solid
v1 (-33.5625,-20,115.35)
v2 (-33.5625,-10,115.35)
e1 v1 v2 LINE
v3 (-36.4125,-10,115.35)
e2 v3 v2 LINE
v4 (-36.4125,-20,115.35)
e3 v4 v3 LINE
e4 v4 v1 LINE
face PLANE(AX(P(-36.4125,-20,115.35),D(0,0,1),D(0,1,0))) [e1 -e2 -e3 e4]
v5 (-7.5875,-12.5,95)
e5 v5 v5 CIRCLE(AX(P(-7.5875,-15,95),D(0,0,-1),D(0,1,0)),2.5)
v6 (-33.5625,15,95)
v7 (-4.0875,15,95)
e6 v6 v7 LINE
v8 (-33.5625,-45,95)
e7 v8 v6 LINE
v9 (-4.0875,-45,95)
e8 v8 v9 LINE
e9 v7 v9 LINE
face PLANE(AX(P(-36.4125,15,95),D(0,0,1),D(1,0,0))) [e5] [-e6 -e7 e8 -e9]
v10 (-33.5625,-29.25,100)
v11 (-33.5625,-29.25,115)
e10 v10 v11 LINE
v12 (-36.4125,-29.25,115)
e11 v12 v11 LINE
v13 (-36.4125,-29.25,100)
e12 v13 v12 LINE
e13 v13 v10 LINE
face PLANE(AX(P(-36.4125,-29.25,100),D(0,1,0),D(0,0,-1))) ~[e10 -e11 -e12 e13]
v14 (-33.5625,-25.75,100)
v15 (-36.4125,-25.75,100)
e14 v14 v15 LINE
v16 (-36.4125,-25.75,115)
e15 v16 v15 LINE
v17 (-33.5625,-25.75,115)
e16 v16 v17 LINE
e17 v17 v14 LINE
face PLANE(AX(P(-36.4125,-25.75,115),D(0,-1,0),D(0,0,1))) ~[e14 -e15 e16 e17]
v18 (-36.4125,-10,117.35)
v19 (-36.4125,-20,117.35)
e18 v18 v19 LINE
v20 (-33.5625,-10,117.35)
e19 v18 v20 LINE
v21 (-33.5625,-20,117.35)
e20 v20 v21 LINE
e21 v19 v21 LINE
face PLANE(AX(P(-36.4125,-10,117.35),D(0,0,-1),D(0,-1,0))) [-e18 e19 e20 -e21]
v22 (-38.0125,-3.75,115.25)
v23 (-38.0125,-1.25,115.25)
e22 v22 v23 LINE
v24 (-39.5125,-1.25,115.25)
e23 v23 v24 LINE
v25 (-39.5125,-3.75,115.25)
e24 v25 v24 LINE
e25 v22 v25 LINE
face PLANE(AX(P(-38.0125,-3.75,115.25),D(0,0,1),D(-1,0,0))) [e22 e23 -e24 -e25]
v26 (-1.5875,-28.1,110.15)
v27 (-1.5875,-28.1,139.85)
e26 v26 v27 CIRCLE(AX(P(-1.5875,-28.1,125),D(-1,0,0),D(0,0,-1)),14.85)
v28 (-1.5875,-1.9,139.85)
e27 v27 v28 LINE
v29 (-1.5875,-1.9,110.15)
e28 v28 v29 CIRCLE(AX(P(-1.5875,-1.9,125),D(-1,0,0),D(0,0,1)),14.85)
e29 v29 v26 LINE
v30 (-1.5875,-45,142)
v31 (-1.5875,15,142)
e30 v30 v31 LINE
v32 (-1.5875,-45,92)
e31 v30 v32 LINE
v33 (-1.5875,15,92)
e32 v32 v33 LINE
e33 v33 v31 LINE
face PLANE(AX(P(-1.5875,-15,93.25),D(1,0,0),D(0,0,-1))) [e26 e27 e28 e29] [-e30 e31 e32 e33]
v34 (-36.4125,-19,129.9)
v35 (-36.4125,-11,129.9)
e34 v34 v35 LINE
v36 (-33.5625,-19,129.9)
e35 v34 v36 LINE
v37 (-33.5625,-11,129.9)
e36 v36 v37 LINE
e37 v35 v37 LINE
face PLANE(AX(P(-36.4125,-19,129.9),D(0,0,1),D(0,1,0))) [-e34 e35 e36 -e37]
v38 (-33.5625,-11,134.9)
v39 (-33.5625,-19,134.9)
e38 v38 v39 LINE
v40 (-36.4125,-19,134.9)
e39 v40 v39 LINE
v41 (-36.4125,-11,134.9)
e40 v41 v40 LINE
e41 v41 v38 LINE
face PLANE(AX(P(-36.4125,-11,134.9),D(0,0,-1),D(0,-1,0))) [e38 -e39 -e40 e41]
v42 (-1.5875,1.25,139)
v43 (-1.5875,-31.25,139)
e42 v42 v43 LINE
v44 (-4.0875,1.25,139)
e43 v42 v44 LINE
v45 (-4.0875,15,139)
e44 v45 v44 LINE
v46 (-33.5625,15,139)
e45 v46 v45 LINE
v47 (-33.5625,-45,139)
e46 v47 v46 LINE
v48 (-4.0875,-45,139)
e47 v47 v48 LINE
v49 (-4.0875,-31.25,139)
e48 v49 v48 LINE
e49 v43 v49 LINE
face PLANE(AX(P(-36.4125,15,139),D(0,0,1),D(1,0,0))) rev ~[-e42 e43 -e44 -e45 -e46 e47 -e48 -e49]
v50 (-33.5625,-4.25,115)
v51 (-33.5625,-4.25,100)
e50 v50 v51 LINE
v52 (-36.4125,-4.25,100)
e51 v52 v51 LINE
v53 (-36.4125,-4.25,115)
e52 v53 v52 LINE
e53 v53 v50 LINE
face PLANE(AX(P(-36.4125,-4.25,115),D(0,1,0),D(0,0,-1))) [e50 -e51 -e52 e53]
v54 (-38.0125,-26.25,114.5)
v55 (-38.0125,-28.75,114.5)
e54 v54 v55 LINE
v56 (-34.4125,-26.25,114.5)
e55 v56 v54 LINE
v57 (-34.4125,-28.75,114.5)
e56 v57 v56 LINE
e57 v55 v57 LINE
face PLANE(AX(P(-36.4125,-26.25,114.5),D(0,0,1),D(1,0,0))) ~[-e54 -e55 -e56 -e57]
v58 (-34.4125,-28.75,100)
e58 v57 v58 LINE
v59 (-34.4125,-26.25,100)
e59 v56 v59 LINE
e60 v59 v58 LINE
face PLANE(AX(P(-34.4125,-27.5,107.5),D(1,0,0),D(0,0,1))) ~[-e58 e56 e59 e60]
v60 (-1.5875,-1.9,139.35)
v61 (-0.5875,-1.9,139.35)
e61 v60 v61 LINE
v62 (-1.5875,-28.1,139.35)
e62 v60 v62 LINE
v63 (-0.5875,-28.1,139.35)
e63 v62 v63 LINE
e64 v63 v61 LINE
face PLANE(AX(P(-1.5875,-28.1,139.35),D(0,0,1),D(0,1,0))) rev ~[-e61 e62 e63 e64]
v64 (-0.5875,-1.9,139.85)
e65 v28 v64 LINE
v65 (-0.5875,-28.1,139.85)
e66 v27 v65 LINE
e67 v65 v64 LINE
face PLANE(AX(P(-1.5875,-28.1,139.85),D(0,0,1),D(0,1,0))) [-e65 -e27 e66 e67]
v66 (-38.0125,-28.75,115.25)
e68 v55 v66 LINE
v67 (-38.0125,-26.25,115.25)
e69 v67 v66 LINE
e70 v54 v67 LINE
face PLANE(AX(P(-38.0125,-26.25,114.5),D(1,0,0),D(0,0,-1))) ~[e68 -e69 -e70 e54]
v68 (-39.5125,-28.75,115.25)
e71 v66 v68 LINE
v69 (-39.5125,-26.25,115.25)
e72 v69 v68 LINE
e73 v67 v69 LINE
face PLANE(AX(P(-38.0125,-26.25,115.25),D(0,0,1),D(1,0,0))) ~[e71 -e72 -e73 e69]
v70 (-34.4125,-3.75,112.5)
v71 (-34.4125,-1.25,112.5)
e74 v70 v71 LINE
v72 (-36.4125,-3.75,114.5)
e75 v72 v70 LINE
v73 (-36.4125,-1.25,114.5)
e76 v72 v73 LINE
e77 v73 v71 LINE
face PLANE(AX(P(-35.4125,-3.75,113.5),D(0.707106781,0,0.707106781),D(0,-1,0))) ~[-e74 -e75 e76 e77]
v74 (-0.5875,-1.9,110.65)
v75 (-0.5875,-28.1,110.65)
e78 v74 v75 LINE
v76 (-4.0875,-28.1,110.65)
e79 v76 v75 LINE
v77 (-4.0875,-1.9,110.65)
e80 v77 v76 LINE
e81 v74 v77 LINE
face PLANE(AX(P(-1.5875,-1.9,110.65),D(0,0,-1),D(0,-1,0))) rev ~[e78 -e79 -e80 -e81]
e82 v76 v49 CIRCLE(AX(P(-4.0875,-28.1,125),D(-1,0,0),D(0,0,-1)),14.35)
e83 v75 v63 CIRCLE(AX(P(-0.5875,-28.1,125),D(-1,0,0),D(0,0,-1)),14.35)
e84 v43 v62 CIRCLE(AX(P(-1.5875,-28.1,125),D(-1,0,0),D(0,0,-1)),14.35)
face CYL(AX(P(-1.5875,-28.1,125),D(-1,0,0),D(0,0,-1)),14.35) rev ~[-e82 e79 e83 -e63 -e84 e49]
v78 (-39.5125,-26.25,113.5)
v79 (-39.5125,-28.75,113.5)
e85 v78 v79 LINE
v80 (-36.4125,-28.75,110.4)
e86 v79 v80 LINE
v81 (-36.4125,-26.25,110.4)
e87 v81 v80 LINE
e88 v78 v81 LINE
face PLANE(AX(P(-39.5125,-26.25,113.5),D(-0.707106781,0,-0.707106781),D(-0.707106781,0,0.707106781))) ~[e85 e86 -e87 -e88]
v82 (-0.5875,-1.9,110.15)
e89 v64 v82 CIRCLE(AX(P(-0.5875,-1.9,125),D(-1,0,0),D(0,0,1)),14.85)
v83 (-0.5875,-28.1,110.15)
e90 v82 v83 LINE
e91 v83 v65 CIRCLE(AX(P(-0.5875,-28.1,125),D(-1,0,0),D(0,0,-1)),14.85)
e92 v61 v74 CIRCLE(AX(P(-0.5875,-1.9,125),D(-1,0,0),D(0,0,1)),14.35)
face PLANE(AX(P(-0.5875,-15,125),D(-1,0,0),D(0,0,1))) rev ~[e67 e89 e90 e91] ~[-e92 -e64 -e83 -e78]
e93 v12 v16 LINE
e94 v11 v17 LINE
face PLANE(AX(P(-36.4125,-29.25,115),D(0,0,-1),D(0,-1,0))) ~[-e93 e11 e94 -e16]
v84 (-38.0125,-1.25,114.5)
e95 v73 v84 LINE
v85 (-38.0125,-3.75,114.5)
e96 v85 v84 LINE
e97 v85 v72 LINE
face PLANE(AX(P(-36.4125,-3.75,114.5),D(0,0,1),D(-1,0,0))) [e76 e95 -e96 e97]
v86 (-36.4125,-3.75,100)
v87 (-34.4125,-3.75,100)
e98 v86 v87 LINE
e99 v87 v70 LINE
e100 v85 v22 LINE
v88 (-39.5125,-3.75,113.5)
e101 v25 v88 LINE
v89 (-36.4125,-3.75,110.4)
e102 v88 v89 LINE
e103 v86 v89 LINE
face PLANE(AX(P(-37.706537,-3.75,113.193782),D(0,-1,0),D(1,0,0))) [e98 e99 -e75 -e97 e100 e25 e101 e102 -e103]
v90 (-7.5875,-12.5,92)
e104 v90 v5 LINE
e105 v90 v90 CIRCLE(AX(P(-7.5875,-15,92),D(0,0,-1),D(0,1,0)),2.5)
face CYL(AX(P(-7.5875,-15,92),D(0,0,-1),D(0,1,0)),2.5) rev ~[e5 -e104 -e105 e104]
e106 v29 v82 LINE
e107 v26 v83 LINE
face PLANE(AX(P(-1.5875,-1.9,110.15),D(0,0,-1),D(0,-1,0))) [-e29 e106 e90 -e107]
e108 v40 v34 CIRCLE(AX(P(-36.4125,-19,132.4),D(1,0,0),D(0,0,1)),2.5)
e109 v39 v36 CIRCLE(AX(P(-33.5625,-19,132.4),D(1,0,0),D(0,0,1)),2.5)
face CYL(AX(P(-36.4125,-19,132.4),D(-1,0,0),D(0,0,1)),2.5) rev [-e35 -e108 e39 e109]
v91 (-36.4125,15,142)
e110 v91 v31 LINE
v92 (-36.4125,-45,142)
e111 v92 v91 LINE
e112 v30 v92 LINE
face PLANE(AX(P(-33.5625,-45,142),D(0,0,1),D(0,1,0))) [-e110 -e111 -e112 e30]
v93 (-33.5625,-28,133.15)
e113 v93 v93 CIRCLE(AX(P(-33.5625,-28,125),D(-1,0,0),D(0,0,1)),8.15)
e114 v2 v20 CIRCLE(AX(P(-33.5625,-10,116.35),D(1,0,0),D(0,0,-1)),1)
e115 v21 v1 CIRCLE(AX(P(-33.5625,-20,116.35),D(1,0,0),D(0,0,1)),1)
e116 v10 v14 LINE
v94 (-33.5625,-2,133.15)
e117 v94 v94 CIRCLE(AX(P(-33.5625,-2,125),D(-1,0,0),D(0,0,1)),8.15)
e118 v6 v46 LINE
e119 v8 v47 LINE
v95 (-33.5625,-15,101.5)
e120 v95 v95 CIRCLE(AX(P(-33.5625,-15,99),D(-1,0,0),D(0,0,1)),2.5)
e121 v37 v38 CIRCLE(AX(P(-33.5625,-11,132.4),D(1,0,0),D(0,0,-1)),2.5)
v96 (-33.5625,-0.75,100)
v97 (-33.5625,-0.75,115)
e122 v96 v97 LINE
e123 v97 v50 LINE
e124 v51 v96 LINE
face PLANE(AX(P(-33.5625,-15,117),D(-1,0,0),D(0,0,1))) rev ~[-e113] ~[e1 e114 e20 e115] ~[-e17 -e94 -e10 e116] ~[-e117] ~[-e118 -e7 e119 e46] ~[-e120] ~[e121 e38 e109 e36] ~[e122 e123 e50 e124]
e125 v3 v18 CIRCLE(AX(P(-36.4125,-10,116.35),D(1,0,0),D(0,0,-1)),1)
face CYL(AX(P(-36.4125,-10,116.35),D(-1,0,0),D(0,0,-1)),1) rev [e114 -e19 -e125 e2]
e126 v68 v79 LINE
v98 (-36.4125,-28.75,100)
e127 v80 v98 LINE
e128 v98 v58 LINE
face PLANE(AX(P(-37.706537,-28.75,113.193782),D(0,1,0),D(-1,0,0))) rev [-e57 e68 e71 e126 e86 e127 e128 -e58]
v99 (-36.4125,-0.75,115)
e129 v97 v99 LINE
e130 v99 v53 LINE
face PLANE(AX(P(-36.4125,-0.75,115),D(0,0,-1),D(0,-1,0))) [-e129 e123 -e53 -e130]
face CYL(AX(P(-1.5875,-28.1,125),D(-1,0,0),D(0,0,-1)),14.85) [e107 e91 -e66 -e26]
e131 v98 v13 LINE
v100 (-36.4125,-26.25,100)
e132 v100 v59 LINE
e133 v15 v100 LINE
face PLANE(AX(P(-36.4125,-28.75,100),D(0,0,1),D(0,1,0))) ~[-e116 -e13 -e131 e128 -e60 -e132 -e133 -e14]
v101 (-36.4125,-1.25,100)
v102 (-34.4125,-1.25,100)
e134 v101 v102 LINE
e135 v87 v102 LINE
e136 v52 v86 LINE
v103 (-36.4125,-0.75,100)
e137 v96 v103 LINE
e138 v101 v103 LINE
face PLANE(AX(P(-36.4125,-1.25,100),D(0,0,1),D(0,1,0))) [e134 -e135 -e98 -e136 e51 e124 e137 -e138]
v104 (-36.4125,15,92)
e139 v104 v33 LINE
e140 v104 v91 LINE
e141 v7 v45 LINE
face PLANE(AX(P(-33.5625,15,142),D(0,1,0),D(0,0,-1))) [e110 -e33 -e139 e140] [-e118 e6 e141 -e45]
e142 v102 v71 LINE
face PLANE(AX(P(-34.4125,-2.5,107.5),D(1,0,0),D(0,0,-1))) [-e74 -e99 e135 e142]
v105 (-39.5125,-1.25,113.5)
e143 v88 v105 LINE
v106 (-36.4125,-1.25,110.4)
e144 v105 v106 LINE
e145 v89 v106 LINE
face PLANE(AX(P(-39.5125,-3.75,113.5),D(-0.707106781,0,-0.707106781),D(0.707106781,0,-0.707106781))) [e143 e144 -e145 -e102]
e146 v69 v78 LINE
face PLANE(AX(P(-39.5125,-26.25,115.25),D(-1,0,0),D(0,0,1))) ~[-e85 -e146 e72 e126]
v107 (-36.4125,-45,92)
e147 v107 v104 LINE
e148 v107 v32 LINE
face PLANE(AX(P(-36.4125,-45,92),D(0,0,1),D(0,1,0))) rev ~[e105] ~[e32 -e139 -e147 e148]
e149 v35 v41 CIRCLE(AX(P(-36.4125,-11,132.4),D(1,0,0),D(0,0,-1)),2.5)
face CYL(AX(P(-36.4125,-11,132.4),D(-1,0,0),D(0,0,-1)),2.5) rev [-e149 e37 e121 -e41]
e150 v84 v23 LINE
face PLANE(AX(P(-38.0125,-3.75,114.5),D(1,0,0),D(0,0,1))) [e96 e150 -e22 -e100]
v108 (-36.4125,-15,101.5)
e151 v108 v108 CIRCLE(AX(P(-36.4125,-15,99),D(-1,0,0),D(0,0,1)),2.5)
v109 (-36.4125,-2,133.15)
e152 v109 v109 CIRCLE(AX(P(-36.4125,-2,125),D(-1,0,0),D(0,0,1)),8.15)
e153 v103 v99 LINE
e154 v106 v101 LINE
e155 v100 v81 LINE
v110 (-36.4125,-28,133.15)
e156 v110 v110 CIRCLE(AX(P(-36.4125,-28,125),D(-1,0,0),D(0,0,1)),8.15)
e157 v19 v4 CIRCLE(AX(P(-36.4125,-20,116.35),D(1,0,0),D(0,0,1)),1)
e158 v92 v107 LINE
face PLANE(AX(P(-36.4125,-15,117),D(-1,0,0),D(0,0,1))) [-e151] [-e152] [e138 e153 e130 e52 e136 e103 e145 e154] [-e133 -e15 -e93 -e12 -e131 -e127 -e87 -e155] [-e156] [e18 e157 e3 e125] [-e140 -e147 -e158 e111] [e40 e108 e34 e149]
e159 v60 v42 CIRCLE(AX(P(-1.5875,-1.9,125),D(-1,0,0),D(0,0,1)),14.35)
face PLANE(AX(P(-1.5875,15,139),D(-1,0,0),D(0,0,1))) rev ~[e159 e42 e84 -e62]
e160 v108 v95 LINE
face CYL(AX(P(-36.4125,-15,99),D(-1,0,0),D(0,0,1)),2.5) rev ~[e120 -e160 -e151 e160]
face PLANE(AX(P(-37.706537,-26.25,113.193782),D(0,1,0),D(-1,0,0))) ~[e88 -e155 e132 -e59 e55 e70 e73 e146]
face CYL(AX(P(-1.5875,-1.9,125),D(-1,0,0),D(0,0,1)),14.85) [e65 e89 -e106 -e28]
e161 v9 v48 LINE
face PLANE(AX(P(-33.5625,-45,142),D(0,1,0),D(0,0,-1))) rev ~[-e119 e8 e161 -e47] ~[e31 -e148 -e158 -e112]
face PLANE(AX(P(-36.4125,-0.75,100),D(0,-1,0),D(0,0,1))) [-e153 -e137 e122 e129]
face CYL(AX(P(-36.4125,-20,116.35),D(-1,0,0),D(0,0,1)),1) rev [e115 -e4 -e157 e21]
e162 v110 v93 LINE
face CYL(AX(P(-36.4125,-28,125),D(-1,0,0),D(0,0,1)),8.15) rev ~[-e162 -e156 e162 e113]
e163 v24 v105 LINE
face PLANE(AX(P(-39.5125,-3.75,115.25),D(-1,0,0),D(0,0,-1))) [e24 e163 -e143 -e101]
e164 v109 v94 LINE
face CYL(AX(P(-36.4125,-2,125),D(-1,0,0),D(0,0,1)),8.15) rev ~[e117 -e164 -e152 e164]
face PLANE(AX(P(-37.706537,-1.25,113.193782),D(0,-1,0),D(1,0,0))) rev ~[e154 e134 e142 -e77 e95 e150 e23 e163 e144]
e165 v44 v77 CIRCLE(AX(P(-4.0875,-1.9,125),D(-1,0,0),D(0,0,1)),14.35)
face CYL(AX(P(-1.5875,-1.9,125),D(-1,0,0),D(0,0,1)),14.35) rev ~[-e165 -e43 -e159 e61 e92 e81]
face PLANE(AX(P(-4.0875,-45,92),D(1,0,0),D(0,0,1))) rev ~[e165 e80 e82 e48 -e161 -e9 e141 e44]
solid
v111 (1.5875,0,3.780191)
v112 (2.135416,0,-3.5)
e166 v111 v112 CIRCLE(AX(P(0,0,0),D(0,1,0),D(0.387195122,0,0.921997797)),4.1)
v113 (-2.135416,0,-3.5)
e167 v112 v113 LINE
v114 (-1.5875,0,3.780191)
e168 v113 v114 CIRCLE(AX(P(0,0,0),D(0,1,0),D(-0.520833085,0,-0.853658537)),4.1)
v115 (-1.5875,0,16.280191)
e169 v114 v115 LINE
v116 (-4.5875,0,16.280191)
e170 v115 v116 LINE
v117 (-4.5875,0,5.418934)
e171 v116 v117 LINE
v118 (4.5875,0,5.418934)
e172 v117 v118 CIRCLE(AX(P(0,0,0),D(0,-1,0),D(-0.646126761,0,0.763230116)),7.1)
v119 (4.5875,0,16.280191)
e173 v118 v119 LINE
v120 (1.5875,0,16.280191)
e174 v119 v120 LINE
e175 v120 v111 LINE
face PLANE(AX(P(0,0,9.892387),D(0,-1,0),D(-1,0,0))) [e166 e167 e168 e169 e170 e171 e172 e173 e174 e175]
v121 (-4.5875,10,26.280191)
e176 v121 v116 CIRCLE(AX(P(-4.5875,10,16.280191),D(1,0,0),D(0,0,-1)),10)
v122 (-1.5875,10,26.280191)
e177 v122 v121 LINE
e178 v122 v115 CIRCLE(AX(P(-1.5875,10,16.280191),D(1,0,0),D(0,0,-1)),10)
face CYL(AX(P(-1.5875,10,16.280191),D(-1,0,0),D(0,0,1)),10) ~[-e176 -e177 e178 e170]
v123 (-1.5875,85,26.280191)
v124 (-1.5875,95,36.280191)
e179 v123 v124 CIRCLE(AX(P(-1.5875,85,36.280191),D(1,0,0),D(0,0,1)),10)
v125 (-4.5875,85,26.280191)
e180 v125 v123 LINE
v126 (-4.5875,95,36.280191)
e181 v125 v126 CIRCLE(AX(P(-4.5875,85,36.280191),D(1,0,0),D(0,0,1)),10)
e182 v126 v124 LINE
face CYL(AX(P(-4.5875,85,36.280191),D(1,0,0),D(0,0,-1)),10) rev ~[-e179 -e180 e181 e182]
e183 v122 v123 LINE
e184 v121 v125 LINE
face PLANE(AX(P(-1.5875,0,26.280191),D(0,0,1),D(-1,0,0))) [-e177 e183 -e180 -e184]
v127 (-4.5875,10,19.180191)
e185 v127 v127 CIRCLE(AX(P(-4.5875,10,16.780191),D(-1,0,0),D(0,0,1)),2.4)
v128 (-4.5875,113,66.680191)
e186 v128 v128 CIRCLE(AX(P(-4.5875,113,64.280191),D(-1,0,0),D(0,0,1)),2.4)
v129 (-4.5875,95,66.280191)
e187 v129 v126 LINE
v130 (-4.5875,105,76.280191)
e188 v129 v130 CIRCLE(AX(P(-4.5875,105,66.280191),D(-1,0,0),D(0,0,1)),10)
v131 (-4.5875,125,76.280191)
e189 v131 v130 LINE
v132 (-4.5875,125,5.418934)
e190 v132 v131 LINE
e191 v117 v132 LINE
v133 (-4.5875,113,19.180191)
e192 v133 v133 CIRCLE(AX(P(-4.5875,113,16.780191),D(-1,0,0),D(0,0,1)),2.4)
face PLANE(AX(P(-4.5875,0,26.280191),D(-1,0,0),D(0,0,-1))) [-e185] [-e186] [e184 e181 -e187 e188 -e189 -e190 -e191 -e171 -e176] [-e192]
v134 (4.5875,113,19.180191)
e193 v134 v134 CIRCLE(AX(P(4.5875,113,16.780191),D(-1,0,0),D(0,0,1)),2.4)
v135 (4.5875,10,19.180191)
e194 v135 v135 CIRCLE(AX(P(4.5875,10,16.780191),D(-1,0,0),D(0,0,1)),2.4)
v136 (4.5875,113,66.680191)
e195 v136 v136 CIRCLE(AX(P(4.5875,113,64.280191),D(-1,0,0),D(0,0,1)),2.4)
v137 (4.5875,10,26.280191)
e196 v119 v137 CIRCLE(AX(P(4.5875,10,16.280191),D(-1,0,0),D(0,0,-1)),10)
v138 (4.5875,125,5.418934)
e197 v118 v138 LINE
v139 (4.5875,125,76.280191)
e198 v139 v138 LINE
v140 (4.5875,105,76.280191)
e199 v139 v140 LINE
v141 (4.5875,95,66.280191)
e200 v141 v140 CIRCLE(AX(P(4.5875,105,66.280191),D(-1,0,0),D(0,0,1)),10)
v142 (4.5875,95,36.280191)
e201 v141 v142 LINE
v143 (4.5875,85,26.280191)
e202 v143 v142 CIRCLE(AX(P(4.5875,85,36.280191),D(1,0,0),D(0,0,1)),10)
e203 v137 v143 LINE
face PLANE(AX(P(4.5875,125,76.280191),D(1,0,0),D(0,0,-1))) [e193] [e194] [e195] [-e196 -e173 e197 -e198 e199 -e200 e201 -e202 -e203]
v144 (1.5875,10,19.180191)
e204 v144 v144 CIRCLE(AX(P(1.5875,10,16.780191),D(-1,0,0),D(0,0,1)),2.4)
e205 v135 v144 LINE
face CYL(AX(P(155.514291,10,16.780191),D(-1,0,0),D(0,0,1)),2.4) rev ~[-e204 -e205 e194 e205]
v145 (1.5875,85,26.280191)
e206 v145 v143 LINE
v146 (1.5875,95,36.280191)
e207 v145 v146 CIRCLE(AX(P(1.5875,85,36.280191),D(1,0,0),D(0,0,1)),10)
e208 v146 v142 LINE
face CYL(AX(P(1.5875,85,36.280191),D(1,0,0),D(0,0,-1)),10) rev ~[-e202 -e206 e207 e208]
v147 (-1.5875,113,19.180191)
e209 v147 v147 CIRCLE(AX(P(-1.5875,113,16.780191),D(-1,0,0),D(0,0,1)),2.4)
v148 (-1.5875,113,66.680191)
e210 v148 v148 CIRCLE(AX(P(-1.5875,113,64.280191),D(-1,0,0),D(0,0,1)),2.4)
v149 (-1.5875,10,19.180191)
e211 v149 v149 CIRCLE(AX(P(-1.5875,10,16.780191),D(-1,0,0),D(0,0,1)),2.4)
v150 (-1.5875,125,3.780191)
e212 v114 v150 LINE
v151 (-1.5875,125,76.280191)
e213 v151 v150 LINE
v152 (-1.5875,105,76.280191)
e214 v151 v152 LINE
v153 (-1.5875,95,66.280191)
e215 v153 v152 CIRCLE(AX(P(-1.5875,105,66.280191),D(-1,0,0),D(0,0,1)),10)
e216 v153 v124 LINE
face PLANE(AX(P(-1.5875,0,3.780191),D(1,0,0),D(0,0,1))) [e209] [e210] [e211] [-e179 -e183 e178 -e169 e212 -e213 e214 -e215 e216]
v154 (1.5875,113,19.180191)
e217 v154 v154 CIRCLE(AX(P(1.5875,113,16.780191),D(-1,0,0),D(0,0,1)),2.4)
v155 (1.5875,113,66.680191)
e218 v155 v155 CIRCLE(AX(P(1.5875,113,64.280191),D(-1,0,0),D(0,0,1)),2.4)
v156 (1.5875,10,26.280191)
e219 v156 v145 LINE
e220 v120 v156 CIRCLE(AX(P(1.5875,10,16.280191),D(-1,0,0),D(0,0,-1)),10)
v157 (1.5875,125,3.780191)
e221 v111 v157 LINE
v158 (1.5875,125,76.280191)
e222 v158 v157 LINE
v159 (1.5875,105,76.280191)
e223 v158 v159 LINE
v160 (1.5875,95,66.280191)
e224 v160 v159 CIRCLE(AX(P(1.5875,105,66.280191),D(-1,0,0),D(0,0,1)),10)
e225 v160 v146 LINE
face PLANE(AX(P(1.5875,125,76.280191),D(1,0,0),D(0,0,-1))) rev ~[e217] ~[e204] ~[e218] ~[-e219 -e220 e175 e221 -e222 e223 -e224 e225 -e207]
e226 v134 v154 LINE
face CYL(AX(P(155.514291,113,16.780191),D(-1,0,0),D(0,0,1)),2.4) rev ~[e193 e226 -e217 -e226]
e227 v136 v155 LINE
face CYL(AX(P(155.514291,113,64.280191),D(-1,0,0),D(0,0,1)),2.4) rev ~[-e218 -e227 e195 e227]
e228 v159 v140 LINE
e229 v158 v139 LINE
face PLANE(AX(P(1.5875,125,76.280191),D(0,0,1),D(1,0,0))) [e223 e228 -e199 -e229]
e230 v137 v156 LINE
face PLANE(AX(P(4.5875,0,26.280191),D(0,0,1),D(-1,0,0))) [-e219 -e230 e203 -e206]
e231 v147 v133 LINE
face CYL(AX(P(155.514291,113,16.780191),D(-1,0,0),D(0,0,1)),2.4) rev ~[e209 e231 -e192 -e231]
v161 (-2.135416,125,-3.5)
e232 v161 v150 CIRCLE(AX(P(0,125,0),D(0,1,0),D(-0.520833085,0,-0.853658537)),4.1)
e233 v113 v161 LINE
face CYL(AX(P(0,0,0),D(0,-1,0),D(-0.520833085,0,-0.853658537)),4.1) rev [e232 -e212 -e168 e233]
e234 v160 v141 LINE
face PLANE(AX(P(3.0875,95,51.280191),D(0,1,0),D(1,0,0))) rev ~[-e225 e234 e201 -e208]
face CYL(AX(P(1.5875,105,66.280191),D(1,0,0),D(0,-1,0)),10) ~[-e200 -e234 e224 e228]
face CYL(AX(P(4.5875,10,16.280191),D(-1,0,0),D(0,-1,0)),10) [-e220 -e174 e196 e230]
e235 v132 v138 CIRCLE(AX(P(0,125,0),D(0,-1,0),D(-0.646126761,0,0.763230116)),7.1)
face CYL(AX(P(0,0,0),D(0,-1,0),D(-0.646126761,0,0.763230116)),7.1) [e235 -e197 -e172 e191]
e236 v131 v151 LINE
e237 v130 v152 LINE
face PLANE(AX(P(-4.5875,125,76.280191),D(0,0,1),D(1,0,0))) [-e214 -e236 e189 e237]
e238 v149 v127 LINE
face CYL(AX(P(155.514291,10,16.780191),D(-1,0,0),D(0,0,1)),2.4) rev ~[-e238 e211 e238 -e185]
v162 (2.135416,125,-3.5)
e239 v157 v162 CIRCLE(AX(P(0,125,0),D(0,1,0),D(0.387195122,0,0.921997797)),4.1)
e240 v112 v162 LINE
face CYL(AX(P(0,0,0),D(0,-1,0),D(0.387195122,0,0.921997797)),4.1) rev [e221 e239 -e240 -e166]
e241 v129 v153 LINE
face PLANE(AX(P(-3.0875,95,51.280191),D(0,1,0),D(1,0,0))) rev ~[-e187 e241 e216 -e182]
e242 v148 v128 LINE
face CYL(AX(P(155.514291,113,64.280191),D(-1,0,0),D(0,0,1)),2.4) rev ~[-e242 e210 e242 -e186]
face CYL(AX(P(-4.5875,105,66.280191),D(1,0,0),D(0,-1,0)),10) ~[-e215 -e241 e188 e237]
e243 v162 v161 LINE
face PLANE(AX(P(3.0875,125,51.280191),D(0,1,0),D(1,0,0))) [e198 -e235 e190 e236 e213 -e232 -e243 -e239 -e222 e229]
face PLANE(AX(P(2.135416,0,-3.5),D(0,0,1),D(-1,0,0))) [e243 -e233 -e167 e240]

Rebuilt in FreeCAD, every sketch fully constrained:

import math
import FreeCAD as App
import Part
import Sketcher
Q = App.Units.Quantity


def edges_at(feature, points):
    """Names of the edges that pass closest to the given points."""
    edges = feature.Shape.Edges
    near = lambda p: min(range(len(edges)), key=lambda i: edges[i].distToShape(Part.Vertex(*p))[0])
    return sorted({f"Edge{near(p) + 1}" for p in points})


def add_polygon(sketch, points):
    """Adds a closed chain of lines whose ends are joined by coincident constraints."""
    first, n = sketch.GeometryCount, len(points)
    for a, b in zip(points, points[1:] + points[:1]):
        sketch.addGeometry(Part.LineSegment(App.Vector(*a, 0), App.Vector(*b, 0)), False)
    for i in range(n):
        sketch.addConstraint(Sketcher.Constraint("Coincident", first + i, 2, first + (i + 1) % n, 1))

doc = App.newDocument("Part")
body = doc.addObject("PartDesign::Body", "Body")

sketch1 = doc.addObject("Sketcher::SketchObject", "Sketch")
body.addObject(sketch1)
sketch1.AttachmentSupport = (doc.XZ_Plane, [""])
sketch1.MapMode = "FlatFace"
sketch1.addGeometry(Part.LineSegment(App.Vector(-1.6, 26.3, 0), App.Vector(-1.6, 3.8, 0)), False)
sketch1.addGeometry(Part.ArcOfCircle(Part.Circle(App.Vector(0, 0, 0), App.Vector(0, 0, 1), 4.1), math.radians(113), math.radians(239)), False)
sketch1.addGeometry(Part.LineSegment(App.Vector(-2.1, -3.5, 0), App.Vector(2.1, -3.5, 0)), False)
sketch1.addGeometry(Part.ArcOfCircle(Part.Circle(App.Vector(0, 0, 0), App.Vector(0, 0, 1), 4.1), math.radians(-59), math.radians(67)), False)
sketch1.addGeometry(Part.LineSegment(App.Vector(1.6, 3.8, 0), App.Vector(1.6, 26.3, 0)), False)
sketch1.addGeometry(Part.LineSegment(App.Vector(1.6, 26.3, 0), App.Vector(4.6, 26.3, 0)), False)
sketch1.addGeometry(Part.LineSegment(App.Vector(4.6, 26.3, 0), App.Vector(4.6, 5.4, 0)), False)
sketch1.addGeometry(Part.ArcOfCircle(Part.Circle(App.Vector(0, 0, 0), App.Vector(0, 0, 1), 7.1), math.radians(130), math.radians(410)), False)
sketch1.addGeometry(Part.LineSegment(App.Vector(-4.6, 5.4, 0), App.Vector(-4.6, 26.3, 0)), False)
sketch1.addGeometry(Part.LineSegment(App.Vector(-4.6, 26.3, 0), App.Vector(-1.6, 26.3, 0)), False)
sketch1.addConstraint(Sketcher.Constraint("Coincident", 0, 2, 1, 1))
sketch1.addConstraint(Sketcher.Constraint("Coincident", 1, 2, 2, 1))
sketch1.addConstraint(Sketcher.Constraint("Coincident", 2, 2, 3, 1))
sketch1.addConstraint(Sketcher.Constraint("Coincident", 3, 2, 4, 1))
sketch1.addConstraint(Sketcher.Constraint("Coincident", 4, 2, 5, 1))
sketch1.addConstraint(Sketcher.Constraint("Coincident", 5, 2, 6, 1))
sketch1.addConstraint(Sketcher.Constraint("Coincident", 6, 2, 7, 2))
sketch1.addConstraint(Sketcher.Constraint("Coincident", 7, 1, 8, 1))
sketch1.addConstraint(Sketcher.Constraint("Coincident", 8, 2, 9, 1))
sketch1.addConstraint(Sketcher.Constraint("Coincident", 9, 2, 0, 1))
sketch1.addConstraint(Sketcher.Constraint("Vertical", 0))
sketch1.addConstraint(Sketcher.Constraint("Horizontal", 2))
sketch1.addConstraint(Sketcher.Constraint("Vertical", 4))
sketch1.addConstraint(Sketcher.Constraint("Horizontal", 5))
sketch1.addConstraint(Sketcher.Constraint("Vertical", 6))
sketch1.addConstraint(Sketcher.Constraint("Vertical", 8))
sketch1.addConstraint(Sketcher.Constraint("Horizontal", 9))
sketch1.addConstraint(Sketcher.Constraint("Coincident", 1, 3, -1, 1))
sketch1.addConstraint(Sketcher.Constraint("Coincident", 3, 3, -1, 1))
sketch1.addConstraint(Sketcher.Constraint("Coincident", 7, 3, -1, 1))
sketch1.addConstraint(Sketcher.Constraint("Equal", 1, 3))
sketch1.addConstraint(Sketcher.Constraint("Symmetric", 5, 2, 8, 2, -2))
sketch1.addConstraint(Sketcher.Constraint("Horizontal", 0, 2, 3, 2))
sketch1.addConstraint(Sketcher.Constraint("Radius", 1, Q("4.1 mm")))
sketch1.addConstraint(Sketcher.Constraint("Radius", 7, Q("7.1 mm")))
sketch1.addConstraint(Sketcher.Constraint("DistanceX", 5, 1, 5, 2, Q("3 mm")))
sketch1.addConstraint(Sketcher.Constraint("DistanceY", 0, 2, 0, 1, Q("22.5 mm")))
sketch1.addConstraint(Sketcher.Constraint("DistanceY", 1, 2, -1, 1, Q("3.5 mm")))
sketch1.addConstraint(Sketcher.Constraint("DistanceX", 0, 2, 3, 2, Q("3.175 mm")))
pad1 = doc.addObject("PartDesign::Pad", "Pad")
body.addObject(pad1)
pad1.Profile = sketch1
pad1.Length = 125
pad1.Reversed = True

sketch2 = doc.addObject("Sketcher::SketchObject", "Sketch001")
body.addObject(sketch2)
sketch2.AttachmentSupport = (doc.XZ_Plane, [""])
sketch2.MapMode = "FlatFace"
sketch2.AttachmentOffset = App.Placement(App.Vector(0, 0, -125), App.Rotation())
add_polygon(sketch2, [(1.6, 26.3), (1.6, 76.3), (4.6, 76.3), (4.6, 26.3)])
add_polygon(sketch2, [(-4.6, 26.3), (-4.6, 76.3), (-1.6, 76.3), (-1.6, 26.3)])
sketch2.addConstraint(Sketcher.Constraint("Vertical", 0))
sketch2.addConstraint(Sketcher.Constraint("Horizontal", 1))
sketch2.addConstraint(Sketcher.Constraint("Vertical", 2))
sketch2.addConstraint(Sketcher.Constraint("Horizontal", 3))
sketch2.addConstraint(Sketcher.Constraint("Vertical", 4))
sketch2.addConstraint(Sketcher.Constraint("Horizontal", 5))
sketch2.addConstraint(Sketcher.Constraint("Vertical", 6))
sketch2.addConstraint(Sketcher.Constraint("Horizontal", 7))
sketch2.addConstraint(Sketcher.Constraint("Symmetric", 1, 2, 4, 2, -2))
sketch2.addConstraint(Sketcher.Constraint("Symmetric", 3, 2, 6, 2, -2))
sketch2.addConstraint(Sketcher.Constraint("DistanceX", 1, 1, 1, 2, Q("3 mm")))
sketch2.addConstraint(Sketcher.Constraint("DistanceY", 0, 1, 0, 2, Q("50 mm")))
sketch2.addConstraint(Sketcher.Constraint("DistanceX", 4, 2, 0, 2, Q("6.175 mm")))
sketch2.addConstraint(Sketcher.Constraint("DistanceY", -1, 1, 0, 2, Q("76.280191 mm")))
pad2 = doc.addObject("PartDesign::Pad", "Pad001")
body.addObject(pad2)
pad2.Profile = sketch2
pad2.Length = 30
doc.recompute()

fillet = doc.addObject("PartDesign::Fillet", "Fillet")
body.addObject(fillet)
fillet.Base = (pad2, edges_at(pad2, [
    (-3.087, 0, 26.28),
    (3.087, 0, 26.28),
    (3.087, 95, 26.28),
    (3.087, 95, 76.28),
    (-3.087, 95, 26.28),
    (-3.087, 95, 76.28),
]))
fillet.Radius = 10

sketch3 = doc.addObject("Sketcher::SketchObject", "Sketch002")
body.addObject(sketch3)
sketch3.AttachmentSupport = (doc.YZ_Plane, [""])
sketch3.MapMode = "FlatFace"
sketch3.AttachmentOffset = App.Placement(App.Vector(0, 0, 4.5875), App.Rotation())
sketch3.addGeometry(Part.Circle(App.Vector(113, 16.8, 0), App.Vector(0, 0, 1), 2.4), False)
sketch3.addGeometry(Part.Circle(App.Vector(10, 16.8, 0), App.Vector(0, 0, 1), 2.4), False)
sketch3.addGeometry(Part.Circle(App.Vector(113, 64.3, 0), App.Vector(0, 0, 1), 2.4), False)
sketch3.addConstraint(Sketcher.Constraint("Equal", 0, 1))
sketch3.addConstraint(Sketcher.Constraint("Equal", 1, 2))
sketch3.addConstraint(Sketcher.Constraint("Horizontal", 0, 3, 1, 3))
sketch3.addConstraint(Sketcher.Constraint("Vertical", 0, 3, 2, 3))
sketch3.addConstraint(Sketcher.Constraint("Diameter", 0, Q("4.8 mm")))
sketch3.addConstraint(Sketcher.Constraint("DistanceX", -1, 1, 0, 3, Q("113 mm")))
sketch3.addConstraint(Sketcher.Constraint("DistanceX", -1, 1, 1, 3, Q("10 mm")))
sketch3.addConstraint(Sketcher.Constraint("DistanceY", 0, 3, 2, 3, Q("47.5 mm")))
sketch3.addConstraint(Sketcher.Constraint("DistanceY", -1, 1, 0, 3, Q("16.780191 mm")))
doc.recompute()
hole = doc.addObject("PartDesign::Hole", "Hole")
body.addObject(hole)
hole.Profile = sketch3
hole.ThreadType = "None"
hole.Diameter = 4.8
hole.DepthType = "ThroughAll"
body2 = doc.addObject("PartDesign::Body", "Body001")

sketch4 = doc.addObject("Sketcher::SketchObject", "Sketch003")
body2.addObject(sketch4)
sketch4.AttachmentSupport = (doc.getObject("YZ_Plane001"), [""])
sketch4.MapMode = "FlatFace"
sketch4.AttachmentOffset = App.Placement(App.Vector(0, 0, -36.4125), App.Rotation())
add_polygon(sketch4, [(15, 92), (-45, 92), (-45, 142), (15, 142)])
sketch4.addGeometry(Part.Circle(App.Vector(-28, 125, 0), App.Vector(0, 0, 1), 8.2), False)
sketch4.addGeometry(Part.ArcOfCircle(Part.Circle(App.Vector(-10, 116.3, 0), App.Vector(0, 0, 1), 1), math.radians(-90), math.radians(90)), False)
sketch4.addGeometry(Part.LineSegment(App.Vector(-10, 117.3, 0), App.Vector(-20, 117.3, 0)), False)
sketch4.addGeometry(Part.ArcOfCircle(Part.Circle(App.Vector(-20, 116.3, 0), App.Vector(0, 0, 1), 1), math.radians(90), math.radians(270)), False)
sketch4.addGeometry(Part.LineSegment(App.Vector(-20, 115.3, 0), App.Vector(-10, 115.3, 0)), False)
sketch4.addGeometry(Part.Circle(App.Vector(-2, 125, 0), App.Vector(0, 0, 1), 8.2), False)
sketch4.addGeometry(Part.ArcOfCircle(Part.Circle(App.Vector(-11, 132.4, 0), App.Vector(0, 0, 1), 2.5), math.radians(-90), math.radians(90)), False)
sketch4.addGeometry(Part.LineSegment(App.Vector(-11, 134.9, 0), App.Vector(-19, 134.9, 0)), False)
sketch4.addGeometry(Part.ArcOfCircle(Part.Circle(App.Vector(-19, 132.4, 0), App.Vector(0, 0, 1), 2.5), math.radians(90), math.radians(270)), False)
sketch4.addGeometry(Part.LineSegment(App.Vector(-19, 129.9, 0), App.Vector(-11, 129.9, 0)), False)
sketch4.addConstraint(Sketcher.Constraint("Tangent", 5, 2, 6, 1))
sketch4.addConstraint(Sketcher.Constraint("Tangent", 6, 2, 7, 1))
sketch4.addConstraint(Sketcher.Constraint("Tangent", 7, 2, 8, 1))
sketch4.addConstraint(Sketcher.Constraint("Tangent", 8, 2, 5, 1))
sketch4.addConstraint(Sketcher.Constraint("Tangent", 10, 2, 11, 1))
sketch4.addConstraint(Sketcher.Constraint("Tangent", 11, 2, 12, 1))
sketch4.addConstraint(Sketcher.Constraint("Tangent", 12, 2, 13, 1))
sketch4.addConstraint(Sketcher.Constraint("Tangent", 13, 2, 10, 1))
sketch4.addConstraint(Sketcher.Constraint("Horizontal", 0))
sketch4.addConstraint(Sketcher.Constraint("Vertical", 1))
sketch4.addConstraint(Sketcher.Constraint("Horizontal", 2))
sketch4.addConstraint(Sketcher.Constraint("Vertical", 3))
sketch4.addConstraint(Sketcher.Constraint("Horizontal", 6))
sketch4.addConstraint(Sketcher.Constraint("Horizontal", 8))
sketch4.addConstraint(Sketcher.Constraint("Horizontal", 11))
sketch4.addConstraint(Sketcher.Constraint("Horizontal", 13))
sketch4.addConstraint(Sketcher.Constraint("Equal", 4, 9))
sketch4.addConstraint(Sketcher.Constraint("Horizontal", 4, 3, 9, 3))
sketch4.addConstraint(Sketcher.Constraint("Radius", 5, Q("1 mm")))
sketch4.addConstraint(Sketcher.Constraint("Diameter", 4, Q("16.3 mm")))
sketch4.addConstraint(Sketcher.Constraint("Radius", 10, Q("2.5 mm")))
sketch4.addConstraint(Sketcher.Constraint("DistanceX", 0, 2, 0, 1, Q("60 mm")))
sketch4.addConstraint(Sketcher.Constraint("DistanceX", 6, 2, 6, 1, Q("10 mm")))
sketch4.addConstraint(Sketcher.Constraint("DistanceX", 11, 2, 11, 1, Q("8 mm")))
sketch4.addConstraint(Sketcher.Constraint("DistanceY", 1, 1, 1, 2, Q("50 mm")))
sketch4.addConstraint(Sketcher.Constraint("DistanceX", 4, 3, -1, 1, Q("28 mm")))
sketch4.addConstraint(Sketcher.Constraint("DistanceY", -1, 1, 4, 3, Q("125 mm")))
sketch4.addConstraint(Sketcher.Constraint("DistanceX", 5, 3, -1, 1, Q("10 mm")))
sketch4.addConstraint(Sketcher.Constraint("DistanceX", 9, 3, -1, 1, Q("2 mm")))
sketch4.addConstraint(Sketcher.Constraint("DistanceX", 10, 3, -1, 1, Q("11 mm")))
sketch4.addConstraint(Sketcher.Constraint("DistanceX", 0, 2, -1, 1, Q("45 mm")))
sketch4.addConstraint(Sketcher.Constraint("DistanceY", -1, 1, 0, 2, Q("92 mm")))
sketch4.addConstraint(Sketcher.Constraint("DistanceY", -1, 1, 10, 3, Q("132.4 mm")))
sketch4.addConstraint(Sketcher.Constraint("DistanceY", -1, 1, 5, 3, Q("116.35 mm")))
pad3 = doc.addObject("PartDesign::Pad", "Pad002")
body2.addObject(pad3)
pad3.Profile = sketch4
pad3.Length = 2.85

sketch5 = doc.addObject("Sketcher::SketchObject", "Sketch004")
body2.addObject(sketch5)
sketch5.AttachmentSupport = (doc.getObject("YZ_Plane001"), [""])
sketch5.MapMode = "FlatFace"
sketch5.AttachmentOffset = App.Placement(App.Vector(0, 0, -33.5625), App.Rotation())
add_polygon(sketch5, [(15, 142), (-45, 142), (-45, 139.5), (15, 139.5)])
add_polygon(sketch5, [(15, 94.5), (-45, 94.5), (-45, 92), (15, 92)])
sketch5.addConstraint(Sketcher.Constraint("Horizontal", 0))
sketch5.addConstraint(Sketcher.Constraint("Vertical", 1))
sketch5.addConstraint(Sketcher.Constraint("Horizontal", 2))
sketch5.addConstraint(Sketcher.Constraint("Vertical", 3))
sketch5.addConstraint(Sketcher.Constraint("Horizontal", 4))
sketch5.addConstraint(Sketcher.Constraint("Vertical", 5))
sketch5.addConstraint(Sketcher.Constraint("Horizontal", 6))
sketch5.addConstraint(Sketcher.Constraint("Vertical", 7))
sketch5.addConstraint(Sketcher.Constraint("Vertical", 1, 2, 4, 2))
sketch5.addConstraint(Sketcher.Constraint("Vertical", 3, 2, 6, 2))
sketch5.addConstraint(Sketcher.Constraint("Equal", 3, 5))
sketch5.addConstraint(Sketcher.Constraint("DistanceX", 0, 2, 0, 1, Q("60 mm")))
sketch5.addConstraint(Sketcher.Constraint("DistanceY", 1, 2, 1, 1, Q("2.5 mm")))
sketch5.addConstraint(Sketcher.Constraint("DistanceX", 0, 2, -1, 1, Q("45 mm")))
sketch5.addConstraint(Sketcher.Constraint("DistanceY", -1, 1, 0, 2, Q("142 mm")))
sketch5.addConstraint(Sketcher.Constraint("DistanceY", -1, 1, 5, 2, Q("92 mm")))
pad4 = doc.addObject("PartDesign::Pad", "Pad003")
body2.addObject(pad4)
pad4.Profile = sketch5
pad4.Length = 31.975

sketch6 = doc.addObject("Sketcher::SketchObject", "Sketch005")
body2.addObject(sketch6)
sketch6.AttachmentSupport = (doc.getObject("XZ_Plane001"), [""])
sketch6.MapMode = "FlatFace"
sketch6.AttachmentOffset = App.Placement(App.Vector(0, 0, 45), App.Rotation())
add_polygon(sketch6, [(-4.1, 142), (-4.1, 92), (-1.6, 92), (-1.6, 142)])
sketch6.addConstraint(Sketcher.Constraint("Vertical", 0))
sketch6.addConstraint(Sketcher.Constraint("Horizontal", 1))
sketch6.addConstraint(Sketcher.Constraint("Vertical", 2))
sketch6.addConstraint(Sketcher.Constraint("Horizontal", 3))
sketch6.addConstraint(Sketcher.Constraint("DistanceY", 0, 2, 0, 1, Q("50 mm")))
sketch6.addConstraint(Sketcher.Constraint("DistanceX", 1, 1, 1, 2, Q("2.5 mm")))
sketch6.addConstraint(Sketcher.Constraint("DistanceY", -1, 1, 0, 2, Q("92 mm")))
sketch6.addConstraint(Sketcher.Constraint("DistanceX", 0, 2, -1, 1, Q("4.0875 mm")))
pad5 = doc.addObject("PartDesign::Pad", "Pad004")
body2.addObject(pad5)
pad5.Profile = sketch6
pad5.Length = 60
pad5.Reversed = True

sketch7 = doc.addObject("Sketcher::SketchObject", "Sketch006")
body2.addObject(sketch7)
sketch7.AttachmentSupport = (doc.getObject("YZ_Plane001"), [""])
sketch7.MapMode = "FlatFace"
sketch7.AttachmentOffset = App.Placement(App.Vector(0, 0, -1.5875), App.Rotation())
sketch7.addGeometry(Part.LineSegment(App.Vector(-28, 111, 0), App.Vector(-2, 111, 0)), False)
sketch7.addGeometry(Part.ArcOfCircle(Part.Circle(App.Vector(-2, 125, 0), App.Vector(0, 0, 1), 14), math.radians(-90), math.radians(90)), False)
sketch7.addGeometry(Part.LineSegment(App.Vector(-2, 139, 0), App.Vector(-28, 139, 0)), False)
sketch7.addGeometry(Part.ArcOfCircle(Part.Circle(App.Vector(-28, 125, 0), App.Vector(0, 0, 1), 14), math.radians(90), math.radians(270)), False)
sketch7.addConstraint(Sketcher.Constraint("Tangent", 0, 2, 1, 1))
sketch7.addConstraint(Sketcher.Constraint("Tangent", 1, 2, 2, 1))
sketch7.addConstraint(Sketcher.Constraint("Tangent", 2, 2, 3, 1))
sketch7.addConstraint(Sketcher.Constraint("Tangent", 3, 2, 0, 1))
sketch7.addConstraint(Sketcher.Constraint("Horizontal", 0))
sketch7.addConstraint(Sketcher.Constraint("Horizontal", 2))
sketch7.addConstraint(Sketcher.Constraint("Radius", 1, Q("14.35 mm")))
sketch7.addConstraint(Sketcher.Constraint("DistanceX", 0, 1, 0, 2, Q("26.2 mm")))
sketch7.addConstraint(Sketcher.Constraint("DistanceY", -1, 1, 1, 3, Q("125 mm")))
sketch7.addConstraint(Sketcher.Constraint("DistanceX", 1, 3, -1, 1, Q("1.9 mm")))
pocket1 = doc.addObject("PartDesign::Pocket", "Pocket")
body2.addObject(pocket1)
pocket1.Profile = sketch7
pocket1.Length = 2.5

sketch8 = doc.addObject("Sketcher::SketchObject", "Sketch007")
body2.addObject(sketch8)
sketch8.AttachmentSupport = (doc.getObject("YZ_Plane001"), [""])
sketch8.MapMode = "FlatFace"
sketch8.AttachmentOffset = App.Placement(App.Vector(0, 0, -1.5875), App.Rotation())
sketch8.addGeometry(Part.LineSegment(App.Vector(-28, 110, 0), App.Vector(-2, 110, 0)), False)
sketch8.addGeometry(Part.ArcOfCircle(Part.Circle(App.Vector(-2, 125, 0), App.Vector(0, 0, 1), 15), math.radians(-90), math.radians(90)), False)
sketch8.addGeometry(Part.LineSegment(App.Vector(-2, 140, 0), App.Vector(-28, 140, 0)), False)
sketch8.addGeometry(Part.ArcOfCircle(Part.Circle(App.Vector(-28, 125, 0), App.Vector(0, 0, 1), 15), math.radians(90), math.radians(270)), False)
sketch8.addGeometry(Part.LineSegment(App.Vector(-2, 111, 0), App.Vector(-28, 111, 0)), False)
sketch8.addGeometry(Part.ArcOfCircle(Part.Circle(App.Vector(-28, 125, 0), App.Vector(0, 0, 1), 14), math.radians(90), math.radians(270)), False)
sketch8.addGeometry(Part.LineSegment(App.Vector(-28, 139, 0), App.Vector(-2, 139, 0)), False)
sketch8.addGeometry(Part.ArcOfCircle(Part.Circle(App.Vector(-2, 125, 0), App.Vector(0, 0, 1), 14), math.radians(-90), math.radians(90)), False)
sketch8.addConstraint(Sketcher.Constraint("Tangent", 0, 2, 1, 1))
sketch8.addConstraint(Sketcher.Constraint("Tangent", 1, 2, 2, 1))
sketch8.addConstraint(Sketcher.Constraint("Tangent", 2, 2, 3, 1))
sketch8.addConstraint(Sketcher.Constraint("Tangent", 3, 2, 0, 1))
sketch8.addConstraint(Sketcher.Constraint("Tangent", 4, 2, 5, 2))
sketch8.addConstraint(Sketcher.Constraint("Tangent", 5, 1, 6, 1))
sketch8.addConstraint(Sketcher.Constraint("Tangent", 6, 2, 7, 2))
sketch8.addConstraint(Sketcher.Constraint("Tangent", 7, 1, 4, 1))
sketch8.addConstraint(Sketcher.Constraint("Horizontal", 0))
sketch8.addConstraint(Sketcher.Constraint("Horizontal", 2))
sketch8.addConstraint(Sketcher.Constraint("Horizontal", 4))
sketch8.addConstraint(Sketcher.Constraint("Horizontal", 6))
sketch8.addConstraint(Sketcher.Constraint("Coincident", 5, 3, 3, 3))
sketch8.addConstraint(Sketcher.Constraint("Vertical", 7, 3, 0, 2))
sketch8.addConstraint(Sketcher.Constraint("Radius", 1, Q("14.85 mm")))
sketch8.addConstraint(Sketcher.Constraint("Radius", 5, Q("14.35 mm")))
sketch8.addConstraint(Sketcher.Constraint("DistanceX", 0, 1, 0, 2, Q("26.2 mm")))
sketch8.addConstraint(Sketcher.Constraint("DistanceY", -1, 1, 1, 3, Q("125 mm")))
sketch8.addConstraint(Sketcher.Constraint("DistanceX", 1, 3, -1, 1, Q("1.9 mm")))
pad6 = doc.addObject("PartDesign::Pad", "Pad005")
body2.addObject(pad6)
pad6.Profile = sketch8
pad6.Length = 1

sketch9 = doc.addObject("Sketcher::SketchObject", "Sketch008")
body2.addObject(sketch9)
sketch9.AttachmentSupport = (doc.getObject("XZ_Plane001"), [""])
sketch9.MapMode = "FlatFace"
sketch9.AttachmentOffset = App.Placement(App.Vector(0, 0, -15), App.Rotation())
add_polygon(sketch9, [(-36.4, 142), (-36.4, 139), (-1.6, 139), (-1.6, 142)])
add_polygon(sketch9, [(-36.4, 95), (-36.4, 92), (-1.6, 92), (-1.6, 95)])
sketch9.addConstraint(Sketcher.Constraint("Vertical", 0))
sketch9.addConstraint(Sketcher.Constraint("Horizontal", 1))
sketch9.addConstraint(Sketcher.Constraint("Vertical", 2))
sketch9.addConstraint(Sketcher.Constraint("Horizontal", 3))
sketch9.addConstraint(Sketcher.Constraint("Vertical", 4))
sketch9.addConstraint(Sketcher.Constraint("Horizontal", 5))
sketch9.addConstraint(Sketcher.Constraint("Vertical", 6))
sketch9.addConstraint(Sketcher.Constraint("Horizontal", 7))
sketch9.addConstraint(Sketcher.Constraint("Vertical", 3, 2, 4, 2))
sketch9.addConstraint(Sketcher.Constraint("Vertical", 2, 2, 5, 2))
sketch9.addConstraint(Sketcher.Constraint("Equal", 2, 4))
sketch9.addConstraint(Sketcher.Constraint("DistanceY", 0, 2, 0, 1, Q("3 mm")))
sketch9.addConstraint(Sketcher.Constraint("DistanceY", -1, 1, 0, 2, Q("139 mm")))
sketch9.addConstraint(Sketcher.Constraint("DistanceY", -1, 1, 4, 2, Q("92 mm")))
sketch9.addConstraint(Sketcher.Constraint("DistanceX", 1, 1, 1, 2, Q("34.825 mm")))
sketch9.addConstraint(Sketcher.Constraint("DistanceX", 0, 2, -1, 1, Q("36.4125 mm")))
pad7 = doc.addObject("PartDesign::Pad", "Pad006")
body2.addObject(pad7)
pad7.Profile = sketch9
pad7.Length = 60

sketch10 = doc.addObject("Sketcher::SketchObject", "Sketch009")
body2.addObject(sketch10)
sketch10.AttachmentSupport = (doc.getObject("YZ_Plane001"), [""])
sketch10.MapMode = "FlatFace"
sketch10.AttachmentOffset = App.Placement(App.Vector(0, 0, -36.4125), App.Rotation())
add_polygon(sketch10, [(-0.8, 100), (-1.2, 100), (-1.2, 114.5), (-3.8, 114.5), (-3.8, 100), (-4.2, 100), (-4.2, 115), (-0.8, 115)])
sketch10.addConstraint(Sketcher.Constraint("Horizontal", 0))
sketch10.addConstraint(Sketcher.Constraint("Vertical", 1))
sketch10.addConstraint(Sketcher.Constraint("Horizontal", 2))
sketch10.addConstraint(Sketcher.Constraint("Vertical", 3))
sketch10.addConstraint(Sketcher.Constraint("Horizontal", 4))
sketch10.addConstraint(Sketcher.Constraint("Vertical", 5))
sketch10.addConstraint(Sketcher.Constraint("Horizontal", 6))
sketch10.addConstraint(Sketcher.Constraint("Vertical", 7))
sketch10.addConstraint(Sketcher.Constraint("Horizontal", 0, 2, 3, 2))
sketch10.addConstraint(Sketcher.Constraint("Equal", 0, 4))
sketch10.addConstraint(Sketcher.Constraint("DistanceY", 5, 1, 5, 2, Q("15 mm")))
sketch10.addConstraint(Sketcher.Constraint("DistanceX", 0, 2, 0, 1, Q("0.5 mm")))
sketch10.addConstraint(Sketcher.Constraint("DistanceX", 2, 2, 2, 1, Q("2.5 mm")))
sketch10.addConstraint(Sketcher.Constraint("DistanceY", 1, 1, 1, 2, Q("14.5 mm")))
sketch10.addConstraint(Sketcher.Constraint("DistanceY", -1, 1, 0, 2, Q("100 mm")))
sketch10.addConstraint(Sketcher.Constraint("DistanceX", 0, 2, -1, 1, Q("1.25 mm")))
pocket2 = doc.addObject("PartDesign::Pocket", "Pocket001")
body2.addObject(pocket2)
pocket2.Profile = sketch10
pocket2.Length = 2.85
pocket2.Reversed = True

sketch11 = doc.addObject("Sketcher::SketchObject", "Sketch010")
body2.addObject(sketch11)
sketch11.AttachmentSupport = (doc.getObject("XZ_Plane001"), [""])
sketch11.MapMode = "FlatFace"
sketch11.AttachmentOffset = App.Placement(App.Vector(0, 0, 3.75), App.Rotation())
add_polygon(sketch11, [(-36.4, 114.5), (-38, 114.5), (-38, 115.2), (-39.5, 115.2), (-39.5, 113.5), (-36.4, 110.4)])
sketch11.addConstraint(Sketcher.Constraint("Horizontal", 0))
sketch11.addConstraint(Sketcher.Constraint("Vertical", 1))
sketch11.addConstraint(Sketcher.Constraint("Horizontal", 2))
sketch11.addConstraint(Sketcher.Constraint("Vertical", 3))
sketch11.addConstraint(Sketcher.Constraint("Vertical", 5))
sketch11.addConstraint(Sketcher.Constraint("Angle", 4, Q("-45 deg")))
sketch11.addConstraint(Sketcher.Constraint("DistanceX", 0, 2, 0, 1, Q("1.6 mm")))
sketch11.addConstraint(Sketcher.Constraint("DistanceX", 2, 2, 2, 1, Q("1.5 mm")))
sketch11.addConstraint(Sketcher.Constraint("DistanceY", 5, 1, 5, 2, Q("4.1 mm")))
sketch11.addConstraint(Sketcher.Constraint("DistanceY", 1, 1, 1, 2, Q("0.75 mm")))
sketch11.addConstraint(Sketcher.Constraint("DistanceY", -1, 1, 0, 2, Q("114.5 mm")))
sketch11.addConstraint(Sketcher.Constraint("DistanceX", 0, 2, -1, 1, Q("38.0125 mm")))
pad8 = doc.addObject("PartDesign::Pad", "Pad007")
body2.addObject(pad8)
pad8.Profile = sketch11
pad8.Length = 2.5
pad8.Reversed = True

sketch12 = doc.addObject("Sketcher::SketchObject", "Sketch011")
body2.addObject(sketch12)
sketch12.AttachmentSupport = (doc.getObject("YZ_Plane001"), [""])
sketch12.MapMode = "FlatFace"
sketch12.AttachmentOffset = App.Placement(App.Vector(0, 0, -33.5625), App.Rotation())
add_polygon(sketch12, [(-0.8, 115), (-4.2, 115), (-4.2, 100), (-0.8, 100)])
sketch12.addConstraint(Sketcher.Constraint("Horizontal", 0))
sketch12.addConstraint(Sketcher.Constraint("Vertical", 1))
sketch12.addConstraint(Sketcher.Constraint("Horizontal", 2))
sketch12.addConstraint(Sketcher.Constraint("Vertical", 3))
sketch12.addConstraint(Sketcher.Constraint("DistanceY", 1, 2, 1, 1, Q("15 mm")))
sketch12.addConstraint(Sketcher.Constraint("DistanceX", 0, 2, 0, 1, Q("3.5 mm")))
sketch12.addConstraint(Sketcher.Constraint("DistanceY", -1, 1, 0, 2, Q("115 mm")))
sketch12.addConstraint(Sketcher.Constraint("DistanceX", 0, 2, -1, 1, Q("4.25 mm")))
pocket3 = doc.addObject("PartDesign::Pocket", "Pocket002")
body2.addObject(pocket3)
pocket3.Profile = sketch12
pocket3.Length = 0.85
doc.recompute()

chamfer = doc.addObject("PartDesign::Chamfer", "Chamfer")
body2.addObject(chamfer)
chamfer.Base = (pocket3, edges_at(pocket3, [(-34.413, -2.5, 114.5)]))
chamfer.Size = 2
doc.recompute()

datumplane = doc.addObject("PartDesign::Plane", "DatumPlane")
body2.addObject(datumplane)
datumplane.AttachmentSupport = (doc.getObject("XZ_Plane001"), [""])
datumplane.MapMode = "FlatFace"
datumplane.AttachmentOffset = App.Placement(App.Vector(0, 0, 15), App.Rotation())
mirrored = doc.addObject("PartDesign::Mirrored", "Mirrored")
body2.addObject(mirrored)
mirrored.Originals = [pocket2, pad8, pocket3]
mirrored.MirrorPlane = (datumplane, [""])
body2.Tip = mirrored

sketch13 = doc.addObject("Sketcher::SketchObject", "Sketch012")
body2.addObject(sketch13)
sketch13.AttachmentSupport = (doc.getObject("YZ_Plane001"), [""])
sketch13.MapMode = "FlatFace"
sketch13.AttachmentOffset = App.Placement(App.Vector(0, 0, -36.4125), App.Rotation())
sketch13.addGeometry(Part.Circle(App.Vector(-15, 99, 0), App.Vector(0, 0, 1), 2.5), False)
sketch13.addConstraint(Sketcher.Constraint("Diameter", 0, Q("5 mm")))
sketch13.addConstraint(Sketcher.Constraint("DistanceX", 0, 3, -1, 1, Q("15 mm")))
sketch13.addConstraint(Sketcher.Constraint("DistanceY", -1, 1, 0, 3, Q("99 mm")))
pocket4 = doc.addObject("PartDesign::Pocket", "Pocket003")
body2.addObject(pocket4)
pocket4.Profile = sketch13
pocket4.Length = 2.85
pocket4.Reversed = True

sketch14 = doc.addObject("Sketcher::SketchObject", "Sketch013")
body2.addObject(sketch14)
sketch14.AttachmentSupport = (doc.getObject("XY_Plane001"), [""])
sketch14.MapMode = "FlatFace"
sketch14.AttachmentOffset = App.Placement(App.Vector(0, 0, 92), App.Rotation())
sketch14.addGeometry(Part.Circle(App.Vector(-7.6, -15, 0), App.Vector(0, 0, 1), 2.5), False)
sketch14.addConstraint(Sketcher.Constraint("Diameter", 0, Q("5 mm")))
sketch14.addConstraint(Sketcher.Constraint("DistanceY", 0, 3, -1, 1, Q("15 mm")))
sketch14.addConstraint(Sketcher.Constraint("DistanceX", 0, 3, -1, 1, Q("7.5875 mm")))
pocket5 = doc.addObject("PartDesign::Pocket", "Pocket004")
body2.addObject(pocket5)
pocket5.Profile = sketch14
pocket5.Length = 3
pocket5.Reversed = True

doc.recompute()
